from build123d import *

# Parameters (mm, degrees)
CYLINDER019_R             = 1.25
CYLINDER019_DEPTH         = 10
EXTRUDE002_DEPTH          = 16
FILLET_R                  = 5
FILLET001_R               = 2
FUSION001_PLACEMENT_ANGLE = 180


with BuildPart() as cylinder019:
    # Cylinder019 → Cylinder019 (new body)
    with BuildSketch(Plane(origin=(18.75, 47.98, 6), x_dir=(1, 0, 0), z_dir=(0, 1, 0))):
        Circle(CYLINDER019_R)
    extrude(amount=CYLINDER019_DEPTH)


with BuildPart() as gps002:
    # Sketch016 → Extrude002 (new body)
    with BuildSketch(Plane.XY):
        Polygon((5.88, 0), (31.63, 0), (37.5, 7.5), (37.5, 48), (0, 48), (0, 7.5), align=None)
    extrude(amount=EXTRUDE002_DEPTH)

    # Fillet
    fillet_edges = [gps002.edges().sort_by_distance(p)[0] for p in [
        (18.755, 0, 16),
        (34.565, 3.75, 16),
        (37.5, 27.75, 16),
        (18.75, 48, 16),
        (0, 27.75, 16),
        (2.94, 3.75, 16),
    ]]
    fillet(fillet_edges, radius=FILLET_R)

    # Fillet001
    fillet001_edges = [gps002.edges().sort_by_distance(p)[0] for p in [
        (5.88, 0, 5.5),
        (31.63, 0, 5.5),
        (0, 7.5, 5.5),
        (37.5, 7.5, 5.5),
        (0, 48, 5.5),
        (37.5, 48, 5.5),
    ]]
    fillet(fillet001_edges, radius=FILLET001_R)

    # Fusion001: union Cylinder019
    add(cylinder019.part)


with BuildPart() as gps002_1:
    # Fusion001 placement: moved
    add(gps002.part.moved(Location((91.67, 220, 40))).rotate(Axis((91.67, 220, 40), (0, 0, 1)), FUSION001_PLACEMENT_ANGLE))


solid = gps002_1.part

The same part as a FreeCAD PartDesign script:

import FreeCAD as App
import Part
import Sketcher

V = App.Vector


def edges_at(feature, points):
    """Names of the edges that pass closest to the given points."""
    edges = feature.Shape.Edges
    near = lambda p: min(range(len(edges)), key=lambda i: edges[i].distToShape(Part.Vertex(*p))[0])
    return sorted({f"Edge{near(p) + 1}" for p in points})


def add_polygon(sketch, points):
    """Adds a closed chain of lines whose ends are joined by coincident constraints."""
    first, n = sketch.GeometryCount, len(points)
    for a, b in zip(points, points[1:] + points[:1]):
        sketch.addGeometry(Part.LineSegment(App.Vector(*a, 0), App.Vector(*b, 0)), False)
    for i in range(n):
        sketch.addConstraint(Sketcher.Constraint("Coincident", first + i, 2, first + (i + 1) % n, 1))

doc = App.newDocument("Part")
body = doc.addObject("PartDesign::Body", "Body")

sketch1 = body.newObject("Sketcher::SketchObject", "Sketch")
sketch1.AttachmentSupport = (doc.getObject("XZ_Plane"), [""])
sketch1.MapMode = "FlatFace"
sketch1.AttachmentOffset = App.Placement(V(0, 0, -47.98), App.Rotation())
sketch1.addGeometry(Part.Circle(V(18.75, 6, 0), V(0, 0, 1), 1.25), False)
sketch1.addConstraint([
    Sketcher.Constraint("Diameter", 0, 2.5),
    Sketcher.Constraint("DistanceY", -1, 1, 0, 3, 6.0),
    Sketcher.Constraint("DistanceX", -1, 1, 0, 3, 18.75),
])
pad1 = body.newObject("PartDesign::Pad", "Pad")
pad1.Profile = sketch1
pad1.Length = 10
pad1.Reversed = True
body2 = doc.addObject("PartDesign::Body", "Body001")

sketch2 = body2.newObject("Sketcher::SketchObject", "Sketch001")
sketch2.AttachmentSupport = (doc.getObject("XY_Plane001"), [""])
sketch2.MapMode = "FlatFace"
add_polygon(sketch2, [(5.88, 0), (31.63, 0), (37.5, 7.5), (37.5, 48), (0, 48), (0, 7.5)])
sketch2.addConstraint([
    Sketcher.Constraint("Horizontal", 0),
    Sketcher.Constraint("Vertical", 2),
    Sketcher.Constraint("Horizontal", 3),
    Sketcher.Constraint("Vertical", 4),
    Sketcher.Constraint("PointOnObject", 0, 2, -1),
    Sketcher.Constraint("PointOnObject", 3, 2, -2),
    Sketcher.Constraint("Horizontal", 1, 2, 4, 2),
    Sketcher.Constraint("DistanceX", 3, 2, 3, 1, 37.5),
    Sketcher.Constraint("DistanceY", 2, 1, 2, 2, 40.5),
    Sketcher.Constraint("DistanceY", -1, 1, 2, 2, 48.0),
    Sketcher.Constraint("DistanceX", 0, 1, 0, 2, 25.75),
    Sketcher.Constraint("DistanceX", -1, 1, 0, 2, 31.63),
])
pad2 = body2.newObject("PartDesign::Pad", "Pad001")
pad2.Profile = sketch2
pad2.Length = 16
doc.recompute()

fillet = body2.newObject("PartDesign::Fillet", "Fillet")
fillet.Base = (pad2, edges_at(pad2, [
    (18.755, 0, 16),
    (34.565, 3.75, 16),
    (37.5, 27.75, 16),
    (18.75, 48, 16),
    (0, 27.75, 16),
    (2.94, 3.75, 16),
]))
fillet.Radius = 5
doc.recompute()

fillet2 = body2.newObject("PartDesign::Fillet", "Fillet001")
fillet2.Base = (fillet, edges_at(fillet, [
    (5.88, 0, 5.5),
    (31.63, 0, 5.5),
    (0, 7.5, 5.5),
    (37.5, 7.5, 5.5),
    (0, 48, 5.5),
    (37.5, 48, 5.5),
]))
fillet2.Radius = 2
doc.recompute()

boolean = body2.newObject("PartDesign::Boolean", "Boolean")
boolean.Type = "Fuse"
boolean.addObjects([body])
body3 = doc.addObject("PartDesign::Body", "Body002")
doc.recompute()

body2.Placement = App.Placement(V(91.67, 220, 40), App.Rotation(V(0, 0, 1), 180))
boolean2 = body3.newObject("PartDesign::Boolean", "Boolean001")
boolean2.Type = "Fuse"
boolean2.addObjects([body2])

doc.recompute()
